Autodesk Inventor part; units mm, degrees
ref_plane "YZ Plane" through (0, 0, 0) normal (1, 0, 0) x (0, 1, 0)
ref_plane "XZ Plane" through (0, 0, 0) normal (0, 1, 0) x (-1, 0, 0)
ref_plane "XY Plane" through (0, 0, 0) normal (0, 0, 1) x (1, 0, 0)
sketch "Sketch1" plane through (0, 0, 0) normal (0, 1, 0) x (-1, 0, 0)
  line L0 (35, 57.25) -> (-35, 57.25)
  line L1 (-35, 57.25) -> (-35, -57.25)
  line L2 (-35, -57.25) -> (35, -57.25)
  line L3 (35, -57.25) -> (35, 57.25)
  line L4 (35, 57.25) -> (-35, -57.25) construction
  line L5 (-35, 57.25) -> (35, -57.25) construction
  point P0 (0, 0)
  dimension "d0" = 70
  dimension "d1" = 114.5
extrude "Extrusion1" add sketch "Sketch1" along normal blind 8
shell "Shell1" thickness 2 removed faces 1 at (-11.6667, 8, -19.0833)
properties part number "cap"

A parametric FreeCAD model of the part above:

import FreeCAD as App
import Part
import Sketcher

V = App.Vector


def faces_at(feature, points):
    """Names of the faces that lie closest to the given points."""
    faces = feature.Shape.Faces
    near = lambda p: min(range(len(faces)), key=lambda i: faces[i].distToShape(Part.Vertex(*p))[0])
    return sorted({f"Face{near(p) + 1}" for p in points})


def add_polygon(sketch, points):
    """Adds a closed chain of lines whose ends are joined by coincident constraints."""
    first, n = sketch.GeometryCount, len(points)
    for a, b in zip(points, points[1:] + points[:1]):
        sketch.addGeometry(Part.LineSegment(App.Vector(*a, 0), App.Vector(*b, 0)), False)
    for i in range(n):
        sketch.addConstraint(Sketcher.Constraint("Coincident", first + i, 2, first + (i + 1) % n, 1))

doc = App.newDocument("Part")
body = doc.addObject("PartDesign::Body", "Body")

# Sketch on XZ plane
sketch1 = doc.addObject("Sketcher::SketchObject", "Sketch")
body.addObject(sketch1)
sketch1.AttachmentSupport = (doc.XZ_Plane, [""])
sketch1.MapMode = "FlatFace"
add_polygon(sketch1, [(-35, -57), (-35, 57), (35, 57), (35, -57)])  # lines 0-3
sketch1.addConstraint(Sketcher.Constraint("Vertical", 0))
sketch1.addConstraint(Sketcher.Constraint("Horizontal", 1))
sketch1.addConstraint(Sketcher.Constraint("Vertical", 2))
sketch1.addConstraint(Sketcher.Constraint("Horizontal", 3))
sketch1.addConstraint(Sketcher.Constraint("Symmetric", 0, 2, 2, 2, -1, 1))
sketch1.addConstraint(Sketcher.Constraint("DistanceX", 1, 1, 1, 2, 70.0))
sketch1.addConstraint(Sketcher.Constraint("DistanceY", 0, 1, 0, 2, 114.5))
pad1 = doc.addObject("PartDesign::Pad", "Pad")
body.addObject(pad1)
pad1.Profile = sketch1
pad1.Length = 8
pad1.Reversed = True
doc.recompute()

thickness = doc.addObject("PartDesign::Thickness", "Thickness")
body.addObject(thickness)
thickness.Base = (pad1, faces_at(pad1, [(-11.667, 8, -19.083)]))
thickness.Value = 2
thickness.Reversed = True
thickness.Join = "Intersection"

doc.recompute()
